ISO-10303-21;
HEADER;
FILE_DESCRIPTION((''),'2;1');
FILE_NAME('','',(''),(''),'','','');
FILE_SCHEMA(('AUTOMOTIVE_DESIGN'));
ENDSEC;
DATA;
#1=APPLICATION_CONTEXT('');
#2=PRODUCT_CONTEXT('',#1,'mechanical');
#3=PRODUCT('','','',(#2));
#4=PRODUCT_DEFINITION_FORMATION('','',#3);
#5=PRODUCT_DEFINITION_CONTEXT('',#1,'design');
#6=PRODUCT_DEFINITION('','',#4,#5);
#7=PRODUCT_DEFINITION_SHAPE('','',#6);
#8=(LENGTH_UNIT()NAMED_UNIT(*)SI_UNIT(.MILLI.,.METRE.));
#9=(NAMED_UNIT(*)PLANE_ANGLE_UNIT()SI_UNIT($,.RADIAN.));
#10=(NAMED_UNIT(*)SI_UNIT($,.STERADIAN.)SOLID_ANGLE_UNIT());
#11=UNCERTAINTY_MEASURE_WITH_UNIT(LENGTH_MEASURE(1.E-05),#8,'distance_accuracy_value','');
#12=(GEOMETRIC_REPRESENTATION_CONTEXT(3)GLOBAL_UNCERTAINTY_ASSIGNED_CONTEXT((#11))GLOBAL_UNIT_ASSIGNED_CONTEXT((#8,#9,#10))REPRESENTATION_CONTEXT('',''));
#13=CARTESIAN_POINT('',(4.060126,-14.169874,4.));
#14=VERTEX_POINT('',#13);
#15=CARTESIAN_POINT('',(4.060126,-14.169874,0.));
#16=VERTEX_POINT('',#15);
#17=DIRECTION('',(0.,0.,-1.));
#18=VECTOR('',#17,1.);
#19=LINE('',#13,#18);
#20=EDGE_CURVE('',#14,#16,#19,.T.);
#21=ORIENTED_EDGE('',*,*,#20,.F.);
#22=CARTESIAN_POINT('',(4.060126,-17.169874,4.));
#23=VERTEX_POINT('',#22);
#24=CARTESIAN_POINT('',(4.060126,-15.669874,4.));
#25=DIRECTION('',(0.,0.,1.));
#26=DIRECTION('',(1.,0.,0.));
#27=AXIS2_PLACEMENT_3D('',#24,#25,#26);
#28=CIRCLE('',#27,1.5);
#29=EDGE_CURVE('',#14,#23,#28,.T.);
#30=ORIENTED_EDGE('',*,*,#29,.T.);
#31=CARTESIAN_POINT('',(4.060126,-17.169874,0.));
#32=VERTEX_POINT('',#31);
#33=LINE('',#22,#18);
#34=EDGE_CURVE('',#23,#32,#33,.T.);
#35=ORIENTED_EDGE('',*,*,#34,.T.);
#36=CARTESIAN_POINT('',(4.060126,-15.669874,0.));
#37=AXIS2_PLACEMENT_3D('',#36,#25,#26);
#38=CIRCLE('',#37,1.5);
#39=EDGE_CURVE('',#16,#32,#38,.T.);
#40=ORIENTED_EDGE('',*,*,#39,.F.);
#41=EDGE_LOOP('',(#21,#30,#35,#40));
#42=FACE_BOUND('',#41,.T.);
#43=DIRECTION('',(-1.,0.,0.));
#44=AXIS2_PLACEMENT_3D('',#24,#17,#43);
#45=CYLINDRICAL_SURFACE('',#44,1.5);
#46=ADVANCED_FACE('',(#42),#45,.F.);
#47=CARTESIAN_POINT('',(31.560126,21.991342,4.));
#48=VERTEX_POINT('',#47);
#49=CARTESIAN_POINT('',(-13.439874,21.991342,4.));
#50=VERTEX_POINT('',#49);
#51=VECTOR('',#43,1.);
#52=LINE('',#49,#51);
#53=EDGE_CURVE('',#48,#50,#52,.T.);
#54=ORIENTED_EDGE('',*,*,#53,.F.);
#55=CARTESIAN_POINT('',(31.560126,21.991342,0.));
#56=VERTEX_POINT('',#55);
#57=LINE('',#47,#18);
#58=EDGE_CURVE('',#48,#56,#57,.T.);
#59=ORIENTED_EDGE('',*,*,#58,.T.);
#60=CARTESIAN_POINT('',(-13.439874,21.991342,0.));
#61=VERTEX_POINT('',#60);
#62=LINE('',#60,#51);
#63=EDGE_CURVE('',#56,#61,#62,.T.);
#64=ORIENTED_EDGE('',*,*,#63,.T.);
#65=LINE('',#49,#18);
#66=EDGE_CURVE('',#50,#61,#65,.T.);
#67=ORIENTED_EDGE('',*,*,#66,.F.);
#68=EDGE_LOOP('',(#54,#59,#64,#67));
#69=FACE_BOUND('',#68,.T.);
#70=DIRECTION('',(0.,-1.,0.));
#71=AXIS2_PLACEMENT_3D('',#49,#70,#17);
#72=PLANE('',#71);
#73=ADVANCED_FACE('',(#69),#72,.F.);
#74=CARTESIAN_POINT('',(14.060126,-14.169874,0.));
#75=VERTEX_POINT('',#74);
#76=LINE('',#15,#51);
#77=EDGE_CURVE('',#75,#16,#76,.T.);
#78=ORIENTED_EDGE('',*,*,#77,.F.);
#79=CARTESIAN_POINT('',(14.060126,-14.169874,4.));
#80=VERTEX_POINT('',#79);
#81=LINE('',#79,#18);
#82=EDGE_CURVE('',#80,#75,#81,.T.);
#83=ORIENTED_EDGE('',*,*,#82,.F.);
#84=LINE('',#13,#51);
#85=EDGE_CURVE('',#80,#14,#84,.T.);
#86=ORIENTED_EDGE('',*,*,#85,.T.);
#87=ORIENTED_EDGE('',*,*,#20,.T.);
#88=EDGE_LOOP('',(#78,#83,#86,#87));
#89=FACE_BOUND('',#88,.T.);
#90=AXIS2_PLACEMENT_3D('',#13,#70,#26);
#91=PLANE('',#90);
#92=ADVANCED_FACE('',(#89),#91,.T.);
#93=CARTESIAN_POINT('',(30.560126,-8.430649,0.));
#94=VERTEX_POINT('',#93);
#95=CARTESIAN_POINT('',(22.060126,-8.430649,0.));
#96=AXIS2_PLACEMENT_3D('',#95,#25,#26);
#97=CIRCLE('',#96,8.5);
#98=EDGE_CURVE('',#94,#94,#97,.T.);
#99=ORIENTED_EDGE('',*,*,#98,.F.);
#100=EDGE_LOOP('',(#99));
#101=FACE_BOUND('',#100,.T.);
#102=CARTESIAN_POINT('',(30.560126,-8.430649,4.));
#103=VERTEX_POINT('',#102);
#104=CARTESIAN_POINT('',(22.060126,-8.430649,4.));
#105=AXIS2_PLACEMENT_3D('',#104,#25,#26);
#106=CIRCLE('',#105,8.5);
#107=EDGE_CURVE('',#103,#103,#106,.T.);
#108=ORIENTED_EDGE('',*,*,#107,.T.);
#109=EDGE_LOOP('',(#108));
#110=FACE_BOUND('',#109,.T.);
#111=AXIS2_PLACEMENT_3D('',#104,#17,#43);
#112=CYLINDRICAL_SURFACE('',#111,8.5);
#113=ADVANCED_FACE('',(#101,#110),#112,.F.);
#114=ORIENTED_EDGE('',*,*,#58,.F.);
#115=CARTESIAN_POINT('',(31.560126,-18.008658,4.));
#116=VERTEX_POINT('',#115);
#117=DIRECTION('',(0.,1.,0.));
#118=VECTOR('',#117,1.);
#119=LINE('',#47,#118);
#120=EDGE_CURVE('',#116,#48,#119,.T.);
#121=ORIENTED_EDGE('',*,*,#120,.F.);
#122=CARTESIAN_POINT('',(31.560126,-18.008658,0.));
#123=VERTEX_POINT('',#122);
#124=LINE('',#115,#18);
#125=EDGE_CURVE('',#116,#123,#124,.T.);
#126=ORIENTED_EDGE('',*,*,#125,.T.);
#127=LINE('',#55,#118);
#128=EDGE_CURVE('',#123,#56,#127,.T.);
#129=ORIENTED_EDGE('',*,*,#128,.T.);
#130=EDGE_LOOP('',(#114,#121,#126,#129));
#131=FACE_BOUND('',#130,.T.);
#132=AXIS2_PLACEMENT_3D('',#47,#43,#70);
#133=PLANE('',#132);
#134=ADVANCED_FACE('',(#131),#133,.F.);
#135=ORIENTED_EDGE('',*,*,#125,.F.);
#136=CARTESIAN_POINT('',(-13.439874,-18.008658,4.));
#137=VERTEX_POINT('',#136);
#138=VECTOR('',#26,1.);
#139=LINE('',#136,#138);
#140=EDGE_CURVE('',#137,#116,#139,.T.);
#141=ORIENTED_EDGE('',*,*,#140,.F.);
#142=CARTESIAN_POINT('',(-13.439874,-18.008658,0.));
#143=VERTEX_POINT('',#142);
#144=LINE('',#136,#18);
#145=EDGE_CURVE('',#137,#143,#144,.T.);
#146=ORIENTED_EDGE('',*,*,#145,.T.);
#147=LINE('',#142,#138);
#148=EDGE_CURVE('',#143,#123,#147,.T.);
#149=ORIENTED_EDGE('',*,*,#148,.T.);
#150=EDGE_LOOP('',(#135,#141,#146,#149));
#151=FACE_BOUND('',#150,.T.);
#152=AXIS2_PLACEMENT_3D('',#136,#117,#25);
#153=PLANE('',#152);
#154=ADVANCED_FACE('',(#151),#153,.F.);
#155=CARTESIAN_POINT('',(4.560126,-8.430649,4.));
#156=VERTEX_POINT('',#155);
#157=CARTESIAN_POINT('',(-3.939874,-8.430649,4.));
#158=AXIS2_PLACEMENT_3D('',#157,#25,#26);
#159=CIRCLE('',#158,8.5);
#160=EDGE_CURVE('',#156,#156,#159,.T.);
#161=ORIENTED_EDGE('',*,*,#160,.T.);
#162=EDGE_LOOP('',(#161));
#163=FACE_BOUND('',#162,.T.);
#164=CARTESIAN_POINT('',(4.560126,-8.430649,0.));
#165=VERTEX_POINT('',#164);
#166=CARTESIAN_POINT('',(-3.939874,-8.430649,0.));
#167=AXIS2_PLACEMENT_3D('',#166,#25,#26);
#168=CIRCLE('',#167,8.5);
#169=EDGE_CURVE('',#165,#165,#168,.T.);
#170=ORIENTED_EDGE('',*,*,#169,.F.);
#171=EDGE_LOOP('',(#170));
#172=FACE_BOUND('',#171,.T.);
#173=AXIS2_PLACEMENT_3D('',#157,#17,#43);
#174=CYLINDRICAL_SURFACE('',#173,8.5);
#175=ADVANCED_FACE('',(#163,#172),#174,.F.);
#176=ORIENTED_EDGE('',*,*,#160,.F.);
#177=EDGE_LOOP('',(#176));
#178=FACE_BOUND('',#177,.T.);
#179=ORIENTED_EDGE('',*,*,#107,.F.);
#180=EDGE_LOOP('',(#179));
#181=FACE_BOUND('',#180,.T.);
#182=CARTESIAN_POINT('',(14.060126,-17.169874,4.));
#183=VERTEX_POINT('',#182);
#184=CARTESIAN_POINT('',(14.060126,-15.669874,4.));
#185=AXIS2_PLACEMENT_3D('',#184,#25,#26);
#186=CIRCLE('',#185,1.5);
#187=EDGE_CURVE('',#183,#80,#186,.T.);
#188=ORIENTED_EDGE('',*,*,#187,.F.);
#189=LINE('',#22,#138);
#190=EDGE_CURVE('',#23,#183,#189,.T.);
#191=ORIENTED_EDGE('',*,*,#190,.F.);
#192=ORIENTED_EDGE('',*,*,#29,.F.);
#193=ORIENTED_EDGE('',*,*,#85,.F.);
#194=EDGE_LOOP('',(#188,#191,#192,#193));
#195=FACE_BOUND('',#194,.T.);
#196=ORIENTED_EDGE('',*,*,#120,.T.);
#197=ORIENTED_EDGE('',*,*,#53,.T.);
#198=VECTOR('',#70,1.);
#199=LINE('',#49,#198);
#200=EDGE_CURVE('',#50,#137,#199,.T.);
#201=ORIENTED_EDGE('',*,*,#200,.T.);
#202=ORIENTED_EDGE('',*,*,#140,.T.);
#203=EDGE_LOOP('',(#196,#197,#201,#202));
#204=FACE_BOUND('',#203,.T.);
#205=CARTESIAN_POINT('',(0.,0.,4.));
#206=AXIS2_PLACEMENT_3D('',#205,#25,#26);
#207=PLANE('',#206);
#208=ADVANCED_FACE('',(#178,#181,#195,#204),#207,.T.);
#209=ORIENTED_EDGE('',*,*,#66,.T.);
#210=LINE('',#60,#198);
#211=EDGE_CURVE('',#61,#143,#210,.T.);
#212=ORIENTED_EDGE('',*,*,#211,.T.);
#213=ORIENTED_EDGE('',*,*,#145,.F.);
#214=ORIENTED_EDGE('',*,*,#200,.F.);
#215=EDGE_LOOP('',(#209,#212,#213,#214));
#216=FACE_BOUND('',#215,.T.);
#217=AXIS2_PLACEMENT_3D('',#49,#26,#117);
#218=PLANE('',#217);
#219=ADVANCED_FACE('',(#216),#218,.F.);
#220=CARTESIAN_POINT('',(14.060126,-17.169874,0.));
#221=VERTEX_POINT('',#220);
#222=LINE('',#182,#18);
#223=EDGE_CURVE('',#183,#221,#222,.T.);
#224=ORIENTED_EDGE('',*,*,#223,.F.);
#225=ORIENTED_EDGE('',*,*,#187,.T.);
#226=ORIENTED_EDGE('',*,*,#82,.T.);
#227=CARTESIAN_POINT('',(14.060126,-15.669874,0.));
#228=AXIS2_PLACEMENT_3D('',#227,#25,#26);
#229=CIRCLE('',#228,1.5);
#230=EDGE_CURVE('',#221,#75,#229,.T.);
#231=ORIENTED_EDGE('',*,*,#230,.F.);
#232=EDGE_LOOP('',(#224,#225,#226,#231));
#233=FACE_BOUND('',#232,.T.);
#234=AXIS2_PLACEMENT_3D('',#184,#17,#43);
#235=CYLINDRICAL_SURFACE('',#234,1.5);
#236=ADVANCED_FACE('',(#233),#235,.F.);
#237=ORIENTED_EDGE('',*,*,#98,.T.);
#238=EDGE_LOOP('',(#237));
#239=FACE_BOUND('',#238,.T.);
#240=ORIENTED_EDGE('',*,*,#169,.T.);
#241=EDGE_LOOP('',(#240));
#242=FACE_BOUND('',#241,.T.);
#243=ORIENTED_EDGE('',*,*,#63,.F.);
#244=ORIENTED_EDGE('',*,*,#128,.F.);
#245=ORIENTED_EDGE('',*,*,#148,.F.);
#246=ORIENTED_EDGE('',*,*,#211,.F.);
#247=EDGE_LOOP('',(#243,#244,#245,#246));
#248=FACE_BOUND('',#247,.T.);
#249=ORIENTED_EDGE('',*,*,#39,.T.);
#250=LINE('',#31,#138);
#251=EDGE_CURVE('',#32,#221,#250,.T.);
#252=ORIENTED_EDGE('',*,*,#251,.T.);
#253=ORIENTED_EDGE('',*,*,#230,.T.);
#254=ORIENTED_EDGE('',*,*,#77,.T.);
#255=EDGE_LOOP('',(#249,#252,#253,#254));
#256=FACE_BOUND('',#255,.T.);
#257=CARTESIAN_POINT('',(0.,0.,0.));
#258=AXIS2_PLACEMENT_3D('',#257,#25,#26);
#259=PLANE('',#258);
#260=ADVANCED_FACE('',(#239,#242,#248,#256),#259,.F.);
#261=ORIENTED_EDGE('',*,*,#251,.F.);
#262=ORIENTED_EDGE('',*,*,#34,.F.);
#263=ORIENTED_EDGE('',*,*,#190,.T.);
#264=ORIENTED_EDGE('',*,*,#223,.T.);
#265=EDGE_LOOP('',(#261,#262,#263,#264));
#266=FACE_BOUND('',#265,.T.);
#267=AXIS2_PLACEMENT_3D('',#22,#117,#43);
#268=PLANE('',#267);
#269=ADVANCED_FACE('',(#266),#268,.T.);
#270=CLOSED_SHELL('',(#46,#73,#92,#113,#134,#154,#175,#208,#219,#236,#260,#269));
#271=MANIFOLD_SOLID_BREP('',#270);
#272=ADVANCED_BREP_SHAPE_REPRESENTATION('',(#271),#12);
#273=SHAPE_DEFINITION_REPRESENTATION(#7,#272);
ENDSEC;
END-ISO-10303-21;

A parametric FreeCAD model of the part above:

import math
import FreeCAD as App
import Part
import Sketcher
from FreeCAD import Vector


def add_polygon(sketch, points):
    """Adds a closed chain of lines whose ends are joined by coincident constraints."""
    first, n = sketch.GeometryCount, len(points)
    for a, b in zip(points, points[1:] + points[:1]):
        sketch.addGeometry(Part.LineSegment(App.Vector(*a, 0), App.Vector(*b, 0)), False)
    for i in range(n):
        sketch.addConstraint(Sketcher.Constraint("Coincident", first + i, 2, first + (i + 1) % n, 1))

doc = App.newDocument("Part")
params = doc.addObject("Spreadsheet::Sheet", "Params")
for row, (alias, value) in enumerate([
    ("sketch1_diameter", "17 mm"),
    ("sketch1_radius", "1.5 mm"),
    ("sketch1_width", "45 mm"),
    ("sketch1_width2", "10 mm"),
    ("sketch1_height", "40 mm"),
    ("pad1_length", "4 mm"),
], start=1):
    params.set(f"A{row}", alias)
    params.set(f"B{row}", "=" + value)
    params.setAlias(f"B{row}", alias)

body = doc.addObject("PartDesign::Body", "Body")

sketch1 = doc.addObject("Sketcher::SketchObject", "Sketch")
body.addObject(sketch1)
sketch1.AttachmentSupport = (doc.XY_Plane, [""])
sketch1.MapMode = "FlatFace"
add_polygon(sketch1, [(-13.4, 22), (-13.4, -18), (31.6, -18), (31.6, 22)])
sketch1.addGeometry(Part.ArcOfCircle(Part.Circle(Vector(4.1, -15.7, 0), Vector(0, 0, 1), 1.5), math.radians(90), math.radians(270)), False)
sketch1.addGeometry(Part.LineSegment(Vector(4.1, -14.2, 0), Vector(14.1, -14.2, 0)), False)
sketch1.addGeometry(Part.ArcOfCircle(Part.Circle(Vector(14.1, -15.7, 0), Vector(0, 0, 1), 1.5), math.radians(-90), math.radians(90)), False)
sketch1.addGeometry(Part.LineSegment(Vector(14.1, -17.2, 0), Vector(4.1, -17.2, 0)), False)
sketch1.addGeometry(Part.Circle(Vector(-3.9, -8.4, 0), Vector(0, 0, 1), 8.5), False)
sketch1.addGeometry(Part.Circle(Vector(22.1, -8.4, 0), Vector(0, 0, 1), 8.5), False)
sketch1.addConstraint(Sketcher.Constraint("Tangent", 4, 1, 5, 1))
sketch1.addConstraint(Sketcher.Constraint("Tangent", 5, 2, 6, 2))
sketch1.addConstraint(Sketcher.Constraint("Tangent", 6, 1, 7, 1))
sketch1.addConstraint(Sketcher.Constraint("Tangent", 7, 2, 4, 2))
sketch1.addConstraint(Sketcher.Constraint("Vertical", 0))
sketch1.addConstraint(Sketcher.Constraint("Horizontal", 1))
sketch1.addConstraint(Sketcher.Constraint("Vertical", 2))
sketch1.addConstraint(Sketcher.Constraint("Horizontal", 3))
sketch1.addConstraint(Sketcher.Constraint("Horizontal", 5))
sketch1.addConstraint(Sketcher.Constraint("Horizontal", 7))
sketch1.addConstraint(Sketcher.Constraint("Equal", 8, 9))
sketch1.addConstraint(Sketcher.Constraint("Horizontal", 8, 3, 9, 3))
sketch1.addConstraint(Sketcher.Constraint("Diameter", 8, 17.0))
sketch1.addConstraint(Sketcher.Constraint("Radius", 4, 1.5))
sketch1.addConstraint(Sketcher.Constraint("DistanceX", 1, 1, 1, 2, 45.0))
sketch1.addConstraint(Sketcher.Constraint("DistanceX", 5, 1, 5, 2, 10.0))
sketch1.addConstraint(Sketcher.Constraint("DistanceY", 0, 2, 0, 1, 40.0))
sketch1.addConstraint(Sketcher.Constraint("DistanceX", 8, 3, 4, 3, 8.0))
sketch1.addConstraint(Sketcher.Constraint("DistanceX", 6, 3, 9, 3, 8.0))
sketch1.addConstraint(Sketcher.Constraint("DistanceX", 0, 2, 8, 3, 9.5))
sketch1.addConstraint(Sketcher.Constraint("DistanceY", 8, 3, -1, 1, 8.430649))
sketch1.addConstraint(Sketcher.Constraint("DistanceY", 0, 2, -1, 1, 18.008658))
sketch1.addConstraint(Sketcher.Constraint("DistanceX", -1, 1, 4, 3, 4.060126))
sketch1.addConstraint(Sketcher.Constraint("DistanceY", 4, 3, -1, 1, 15.669874))
sketch1.setExpression("Constraints[16]", "Params.sketch1_diameter")
sketch1.setExpression("Constraints[17]", "Params.sketch1_radius")
sketch1.setExpression("Constraints[18]", "Params.sketch1_width")
sketch1.setExpression("Constraints[19]", "Params.sketch1_width2")
sketch1.setExpression("Constraints[20]", "Params.sketch1_height")
pad1 = doc.addObject("PartDesign::Pad", "Pad")
body.addObject(pad1)
pad1.Profile = sketch1
pad1.setExpression("Length", "Params.pad1_length")

doc.recompute()
